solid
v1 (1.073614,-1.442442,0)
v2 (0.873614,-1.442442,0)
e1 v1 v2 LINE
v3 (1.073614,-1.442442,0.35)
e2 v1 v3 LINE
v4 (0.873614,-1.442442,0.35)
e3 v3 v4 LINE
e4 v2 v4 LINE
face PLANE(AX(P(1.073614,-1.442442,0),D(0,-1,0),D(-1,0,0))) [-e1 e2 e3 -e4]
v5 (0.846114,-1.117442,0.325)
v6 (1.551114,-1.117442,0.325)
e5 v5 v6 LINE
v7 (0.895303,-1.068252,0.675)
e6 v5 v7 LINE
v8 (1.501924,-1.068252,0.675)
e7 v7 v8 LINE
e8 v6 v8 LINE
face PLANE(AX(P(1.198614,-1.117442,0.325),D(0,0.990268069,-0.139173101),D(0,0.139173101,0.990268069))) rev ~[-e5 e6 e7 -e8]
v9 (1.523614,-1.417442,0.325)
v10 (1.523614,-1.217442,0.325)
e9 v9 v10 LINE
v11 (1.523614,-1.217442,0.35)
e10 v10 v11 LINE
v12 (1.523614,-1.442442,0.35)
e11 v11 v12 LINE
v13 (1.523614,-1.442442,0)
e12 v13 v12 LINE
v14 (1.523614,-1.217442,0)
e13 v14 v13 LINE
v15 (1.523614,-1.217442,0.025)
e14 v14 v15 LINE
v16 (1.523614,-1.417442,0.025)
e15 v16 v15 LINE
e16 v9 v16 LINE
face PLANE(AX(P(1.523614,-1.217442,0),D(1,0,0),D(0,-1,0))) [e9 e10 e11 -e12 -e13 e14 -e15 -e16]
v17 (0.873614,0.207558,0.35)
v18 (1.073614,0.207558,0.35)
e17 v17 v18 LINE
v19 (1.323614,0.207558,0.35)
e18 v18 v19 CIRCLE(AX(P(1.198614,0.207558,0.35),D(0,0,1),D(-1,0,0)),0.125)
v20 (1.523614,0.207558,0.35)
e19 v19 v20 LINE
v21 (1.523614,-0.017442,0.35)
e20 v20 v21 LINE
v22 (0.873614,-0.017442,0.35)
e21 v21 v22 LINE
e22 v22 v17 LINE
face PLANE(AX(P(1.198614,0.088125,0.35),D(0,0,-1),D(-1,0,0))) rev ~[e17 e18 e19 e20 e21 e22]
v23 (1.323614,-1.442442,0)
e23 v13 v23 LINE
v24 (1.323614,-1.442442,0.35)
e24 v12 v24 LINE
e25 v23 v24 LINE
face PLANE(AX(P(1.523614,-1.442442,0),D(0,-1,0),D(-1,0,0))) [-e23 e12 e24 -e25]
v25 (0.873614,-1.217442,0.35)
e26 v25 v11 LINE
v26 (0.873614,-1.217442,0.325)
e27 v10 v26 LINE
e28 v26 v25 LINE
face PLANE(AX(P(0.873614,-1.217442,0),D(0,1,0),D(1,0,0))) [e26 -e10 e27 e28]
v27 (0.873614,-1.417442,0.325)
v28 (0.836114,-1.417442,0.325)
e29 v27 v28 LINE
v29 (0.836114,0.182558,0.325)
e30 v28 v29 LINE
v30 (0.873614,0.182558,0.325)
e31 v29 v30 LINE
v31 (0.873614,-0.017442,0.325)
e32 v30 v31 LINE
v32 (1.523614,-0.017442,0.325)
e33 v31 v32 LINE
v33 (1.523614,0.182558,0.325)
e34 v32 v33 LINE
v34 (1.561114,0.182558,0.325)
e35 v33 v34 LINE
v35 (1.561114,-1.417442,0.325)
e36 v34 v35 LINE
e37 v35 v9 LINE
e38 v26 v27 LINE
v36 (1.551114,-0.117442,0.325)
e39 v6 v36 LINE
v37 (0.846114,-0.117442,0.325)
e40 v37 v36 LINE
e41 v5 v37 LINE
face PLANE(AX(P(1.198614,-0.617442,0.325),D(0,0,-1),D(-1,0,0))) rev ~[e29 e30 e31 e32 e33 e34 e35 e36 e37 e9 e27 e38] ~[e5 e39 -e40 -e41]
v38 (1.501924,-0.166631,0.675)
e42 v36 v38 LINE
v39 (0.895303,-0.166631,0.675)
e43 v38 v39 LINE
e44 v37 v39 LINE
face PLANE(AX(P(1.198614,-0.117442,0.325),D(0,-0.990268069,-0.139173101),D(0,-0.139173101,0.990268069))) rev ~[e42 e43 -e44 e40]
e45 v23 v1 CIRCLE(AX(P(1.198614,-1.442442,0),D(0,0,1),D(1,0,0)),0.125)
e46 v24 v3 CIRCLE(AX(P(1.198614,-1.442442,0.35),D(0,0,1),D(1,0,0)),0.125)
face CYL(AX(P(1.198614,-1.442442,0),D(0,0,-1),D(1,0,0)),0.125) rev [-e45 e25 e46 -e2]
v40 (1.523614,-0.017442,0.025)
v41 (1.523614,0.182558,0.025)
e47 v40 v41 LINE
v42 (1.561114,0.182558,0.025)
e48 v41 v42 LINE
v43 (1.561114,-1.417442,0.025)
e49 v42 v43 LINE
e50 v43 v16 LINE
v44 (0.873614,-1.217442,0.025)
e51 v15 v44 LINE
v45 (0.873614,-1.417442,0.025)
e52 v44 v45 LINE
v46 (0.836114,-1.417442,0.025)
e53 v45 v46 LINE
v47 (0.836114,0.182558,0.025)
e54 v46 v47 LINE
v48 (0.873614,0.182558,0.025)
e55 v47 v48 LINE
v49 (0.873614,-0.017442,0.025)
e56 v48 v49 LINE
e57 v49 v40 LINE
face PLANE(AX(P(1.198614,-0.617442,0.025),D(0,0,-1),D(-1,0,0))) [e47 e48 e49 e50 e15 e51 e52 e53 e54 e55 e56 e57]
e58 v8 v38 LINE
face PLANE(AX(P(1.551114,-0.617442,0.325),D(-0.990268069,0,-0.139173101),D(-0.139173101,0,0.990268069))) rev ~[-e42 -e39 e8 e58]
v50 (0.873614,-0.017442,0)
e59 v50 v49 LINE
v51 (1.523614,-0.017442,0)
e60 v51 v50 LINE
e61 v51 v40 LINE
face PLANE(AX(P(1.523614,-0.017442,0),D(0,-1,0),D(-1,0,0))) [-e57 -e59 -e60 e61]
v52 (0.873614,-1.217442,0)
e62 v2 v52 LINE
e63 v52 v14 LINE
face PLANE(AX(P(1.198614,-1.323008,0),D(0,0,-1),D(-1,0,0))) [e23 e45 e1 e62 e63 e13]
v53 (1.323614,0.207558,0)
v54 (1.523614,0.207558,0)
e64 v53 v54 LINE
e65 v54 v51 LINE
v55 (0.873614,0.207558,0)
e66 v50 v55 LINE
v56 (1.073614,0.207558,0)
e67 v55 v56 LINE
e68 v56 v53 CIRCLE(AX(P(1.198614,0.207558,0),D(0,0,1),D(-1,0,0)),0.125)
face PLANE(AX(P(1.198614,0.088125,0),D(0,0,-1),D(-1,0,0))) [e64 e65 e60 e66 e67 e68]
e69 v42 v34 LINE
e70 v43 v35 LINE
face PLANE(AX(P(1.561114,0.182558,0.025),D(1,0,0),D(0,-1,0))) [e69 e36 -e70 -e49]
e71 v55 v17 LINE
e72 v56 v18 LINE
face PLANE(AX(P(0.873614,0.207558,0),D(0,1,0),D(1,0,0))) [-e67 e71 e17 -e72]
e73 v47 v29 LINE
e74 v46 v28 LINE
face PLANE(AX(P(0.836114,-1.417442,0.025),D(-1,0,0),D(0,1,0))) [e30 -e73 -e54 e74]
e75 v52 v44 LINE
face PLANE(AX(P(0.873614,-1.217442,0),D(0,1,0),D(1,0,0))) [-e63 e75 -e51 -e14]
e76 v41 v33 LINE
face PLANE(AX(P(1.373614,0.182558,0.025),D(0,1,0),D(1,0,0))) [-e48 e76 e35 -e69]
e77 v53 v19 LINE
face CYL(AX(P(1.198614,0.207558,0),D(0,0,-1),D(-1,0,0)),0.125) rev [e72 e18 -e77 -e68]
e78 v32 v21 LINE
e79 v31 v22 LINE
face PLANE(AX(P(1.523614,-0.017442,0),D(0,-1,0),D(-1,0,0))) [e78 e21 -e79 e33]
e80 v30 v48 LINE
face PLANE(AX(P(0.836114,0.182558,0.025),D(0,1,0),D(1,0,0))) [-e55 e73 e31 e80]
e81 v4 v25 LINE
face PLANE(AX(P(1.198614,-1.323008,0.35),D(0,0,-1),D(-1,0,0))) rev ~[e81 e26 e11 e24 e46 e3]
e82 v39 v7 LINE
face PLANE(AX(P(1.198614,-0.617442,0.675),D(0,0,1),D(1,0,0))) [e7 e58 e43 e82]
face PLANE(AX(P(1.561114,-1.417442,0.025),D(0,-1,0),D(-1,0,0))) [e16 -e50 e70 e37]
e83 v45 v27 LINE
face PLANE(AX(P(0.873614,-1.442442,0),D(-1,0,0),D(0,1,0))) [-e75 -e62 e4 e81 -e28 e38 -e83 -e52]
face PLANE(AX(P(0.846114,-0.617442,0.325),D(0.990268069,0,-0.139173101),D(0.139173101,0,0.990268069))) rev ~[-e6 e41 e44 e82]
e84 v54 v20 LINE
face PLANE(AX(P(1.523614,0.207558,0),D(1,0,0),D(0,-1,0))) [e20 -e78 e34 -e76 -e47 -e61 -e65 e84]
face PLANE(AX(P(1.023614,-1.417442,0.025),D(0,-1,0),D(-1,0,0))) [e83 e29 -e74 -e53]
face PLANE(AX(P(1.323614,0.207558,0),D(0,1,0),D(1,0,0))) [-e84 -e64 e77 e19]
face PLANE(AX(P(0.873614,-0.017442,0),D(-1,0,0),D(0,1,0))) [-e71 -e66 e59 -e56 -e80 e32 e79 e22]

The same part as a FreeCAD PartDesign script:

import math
import FreeCAD as App
import Part
import Sketcher
from FreeCAD import Vector
Q = App.Units.Quantity

doc = App.newDocument("Part")
body = doc.addObject("PartDesign::Body", "Body")

# Sketch on XY plane
sketch1 = body.newObject("Sketcher::SketchObject", "Sketch")
sketch1.AttachmentSupport = (doc.getObject("XY_Plane"), [""])
sketch1.MapMode = "FlatFace"
sketch1.addGeometry(Part.LineSegment(Vector(1.07, 0.21, 0), Vector(0.87, 0.21, 0)), False)
sketch1.addGeometry(Part.LineSegment(Vector(0.87, 0.21, 0), Vector(0.87, -0.02, 0)), False)
sketch1.addGeometry(Part.LineSegment(Vector(0.87, -0.02, 0), Vector(1.52, -0.02, 0)), False)
sketch1.addGeometry(Part.LineSegment(Vector(1.52, -0.02, 0), Vector(1.52, 0.21, 0)), False)
sketch1.addGeometry(Part.LineSegment(Vector(1.52, 0.21, 0), Vector(1.32, 0.21, 0)), False)
sketch1.addGeometry(Part.ArcOfCircle(Part.Circle(Vector(1.2, 0.21, 0), Vector(0, 0, 1), 0.12), math.radians(180), math.radians(360)), False)
sketch1.addConstraint(Sketcher.Constraint("Coincident", 0, 2, 1, 1))
sketch1.addConstraint(Sketcher.Constraint("Coincident", 1, 2, 2, 1))
sketch1.addConstraint(Sketcher.Constraint("Coincident", 2, 2, 3, 1))
sketch1.addConstraint(Sketcher.Constraint("Coincident", 3, 2, 4, 1))
sketch1.addConstraint(Sketcher.Constraint("Coincident", 4, 2, 5, 2))
sketch1.addConstraint(Sketcher.Constraint("Coincident", 5, 1, 0, 1))
sketch1.addConstraint(Sketcher.Constraint("Horizontal", 0))
sketch1.addConstraint(Sketcher.Constraint("Vertical", 1))
sketch1.addConstraint(Sketcher.Constraint("Horizontal", 2))
sketch1.addConstraint(Sketcher.Constraint("Vertical", 3))
sketch1.addConstraint(Sketcher.Constraint("Horizontal", 4))
sketch1.addConstraint(Sketcher.Constraint("Horizontal", 5, 3, 0, 2))
sketch1.addConstraint(Sketcher.Constraint("Horizontal", 0, 2, 3, 2))
sketch1.addConstraint(Sketcher.Constraint("Equal", 0, 4))
sketch1.addConstraint(Sketcher.Constraint("DistanceX", 0, 2, 0, 1, Q("0.2 mm")))
sketch1.addConstraint(Sketcher.Constraint("Radius", 5, Q("0.125 mm")))
sketch1.addConstraint(Sketcher.Constraint("DistanceY", 1, 2, 1, 1, Q("0.225 mm")))
sketch1.addConstraint(Sketcher.Constraint("DistanceY", -1, 1, 5, 3, Q("0.207558 mm")))
sketch1.addConstraint(Sketcher.Constraint("DistanceX", -1, 1, 5, 3, Q("1.198614 mm")))
pad1 = body.newObject("PartDesign::Pad", "Pad")
pad1.Profile = sketch1
pad1.Length = 0.35
body2 = doc.addObject("PartDesign::Body", "Body001")

# Sketch on XY plane
sketch2 = body2.newObject("Sketcher::SketchObject", "Sketch001")
sketch2.AttachmentSupport = (doc.getObject("XY_Plane001"), [""])
sketch2.MapMode = "FlatFace"
sketch2.addGeometry(Part.LineSegment(Vector(1.52, -1.22, 0), Vector(0.87, -1.22, 0)), False)
sketch2.addGeometry(Part.LineSegment(Vector(0.87, -1.22, 0), Vector(0.87, -1.44, 0)), False)
sketch2.addGeometry(Part.LineSegment(Vector(0.87, -1.44, 0), Vector(1.07, -1.44, 0)), False)
sketch2.addGeometry(Part.ArcOfCircle(Part.Circle(Vector(1.2, -1.44, 0), Vector(0, 0, 1), 0.12), math.radians(0), math.radians(180)), False)
sketch2.addGeometry(Part.LineSegment(Vector(1.32, -1.44, 0), Vector(1.52, -1.44, 0)), False)
sketch2.addGeometry(Part.LineSegment(Vector(1.52, -1.44, 0), Vector(1.52, -1.22, 0)), False)
sketch2.addConstraint(Sketcher.Constraint("Coincident", 0, 2, 1, 1))
sketch2.addConstraint(Sketcher.Constraint("Coincident", 1, 2, 2, 1))
sketch2.addConstraint(Sketcher.Constraint("Coincident", 2, 2, 3, 2))
sketch2.addConstraint(Sketcher.Constraint("Coincident", 3, 1, 4, 1))
sketch2.addConstraint(Sketcher.Constraint("Coincident", 4, 2, 5, 1))
sketch2.addConstraint(Sketcher.Constraint("Coincident", 5, 2, 0, 1))
sketch2.addConstraint(Sketcher.Constraint("Horizontal", 0))
sketch2.addConstraint(Sketcher.Constraint("Vertical", 1))
sketch2.addConstraint(Sketcher.Constraint("Horizontal", 2))
sketch2.addConstraint(Sketcher.Constraint("Horizontal", 4))
sketch2.addConstraint(Sketcher.Constraint("Vertical", 5))
sketch2.addConstraint(Sketcher.Constraint("Horizontal", 3, 3, 1, 2))
sketch2.addConstraint(Sketcher.Constraint("Horizontal", 2, 2, 3, 1))
sketch2.addConstraint(Sketcher.Constraint("Equal", 2, 4))
sketch2.addConstraint(Sketcher.Constraint("DistanceX", 2, 1, 2, 2, Q("0.2 mm")))
sketch2.addConstraint(Sketcher.Constraint("Radius", 3, Q("0.125 mm")))
sketch2.addConstraint(Sketcher.Constraint("DistanceY", 1, 2, 1, 1, Q("0.225 mm")))
sketch2.addConstraint(Sketcher.Constraint("DistanceY", 3, 3, -1, 1, Q("1.442442 mm")))
sketch2.addConstraint(Sketcher.Constraint("DistanceX", -1, 1, 3, 3, Q("1.198614 mm")))
pad2 = body2.newObject("PartDesign::Pad", "Pad001")
pad2.Profile = sketch2
pad2.Length = 0.35
body.AllowCompound = True
doc.recompute()

boolean = body.newObject("PartDesign::Boolean", "Boolean")
boolean.Type = "Fuse"
boolean.addObjects([body2])

# Sketch on XY plane
sketch3 = body.newObject("Sketcher::SketchObject", "Sketch002")
sketch3.AttachmentSupport = (doc.getObject("XY_Plane"), [""])
sketch3.MapMode = "FlatFace"
sketch3.AttachmentOffset = App.Placement(Vector(0, 0, 0.025), App.Rotation())
sketch3.addGeometry(Part.LineSegment(Vector(1.02, 0.18, 0), Vector(0.84, 0.18, 0)), False)
sketch3.addGeometry(Part.LineSegment(Vector(0.84, 0.18, 0), Vector(0.84, -1.42, 0)), False)
sketch3.addGeometry(Part.LineSegment(Vector(0.84, -1.42, 0), Vector(1.02, -1.42, 0)), False)
sketch3.addGeometry(Part.ArcOfCircle(Part.Circle(Vector(1.2, -1.42, 0), Vector(0, 0, 1), 0.17), math.radians(0), math.radians(180)), False)
sketch3.addGeometry(Part.LineSegment(Vector(1.37, -1.42, 0), Vector(1.56, -1.42, 0)), False)
sketch3.addGeometry(Part.LineSegment(Vector(1.56, -1.42, 0), Vector(1.56, 0.18, 0)), False)
sketch3.addGeometry(Part.LineSegment(Vector(1.56, 0.18, 0), Vector(1.37, 0.18, 0)), False)
sketch3.addGeometry(Part.ArcOfCircle(Part.Circle(Vector(1.2, 0.18, 0), Vector(0, 0, 1), 0.17), math.radians(180), math.radians(360)), False)
sketch3.addConstraint(Sketcher.Constraint("Coincident", 0, 2, 1, 1))
sketch3.addConstraint(Sketcher.Constraint("Coincident", 1, 2, 2, 1))
sketch3.addConstraint(Sketcher.Constraint("Coincident", 2, 2, 3, 2))
sketch3.addConstraint(Sketcher.Constraint("Coincident", 3, 1, 4, 1))
sketch3.addConstraint(Sketcher.Constraint("Coincident", 4, 2, 5, 1))
sketch3.addConstraint(Sketcher.Constraint("Coincident", 5, 2, 6, 1))
sketch3.addConstraint(Sketcher.Constraint("Coincident", 6, 2, 7, 2))
sketch3.addConstraint(Sketcher.Constraint("Coincident", 7, 1, 0, 1))
sketch3.addConstraint(Sketcher.Constraint("Horizontal", 0))
sketch3.addConstraint(Sketcher.Constraint("Vertical", 1))
sketch3.addConstraint(Sketcher.Constraint("Horizontal", 2))
sketch3.addConstraint(Sketcher.Constraint("Horizontal", 4))
sketch3.addConstraint(Sketcher.Constraint("Vertical", 5))
sketch3.addConstraint(Sketcher.Constraint("Horizontal", 6))
sketch3.addConstraint(Sketcher.Constraint("Equal", 3, 7))
sketch3.addConstraint(Sketcher.Constraint("Horizontal", 7, 3, 0, 2))
sketch3.addConstraint(Sketcher.Constraint("Horizontal", 3, 3, 1, 2))
sketch3.addConstraint(Sketcher.Constraint("Horizontal", 2, 2, 3, 1))
sketch3.addConstraint(Sketcher.Constraint("Horizontal", 0, 2, 5, 2))
sketch3.addConstraint(Sketcher.Constraint("Vertical", 3, 3, 7, 3))
sketch3.addConstraint(Sketcher.Constraint("Equal", 2, 4))
sketch3.addConstraint(Sketcher.Constraint("DistanceY", 1, 2, 1, 1, Q("1.6 mm")))
sketch3.addConstraint(Sketcher.Constraint("Radius", 3, Q("0.175 mm")))
sketch3.addConstraint(Sketcher.Constraint("DistanceX", 0, 2, 0, 1, Q("0.1875 mm")))
sketch3.addConstraint(Sketcher.Constraint("DistanceY", 3, 3, -1, 1, Q("1.417442 mm")))
sketch3.addConstraint(Sketcher.Constraint("DistanceX", -1, 1, 3, 3, Q("1.198614 mm")))
pad3 = body.newObject("PartDesign::Pad", "Pad002")
pad3.Profile = sketch3
pad3.Length = 0.3

# Sketch on XY plane
sketch4 = body.newObject("Sketcher::SketchObject", "Sketch003")
sketch4.AttachmentSupport = (doc.getObject("XY_Plane"), [""])
sketch4.MapMode = "FlatFace"
sketch4.AttachmentOffset = App.Placement(Vector(0, 0, 0.325), App.Rotation())
sketch4.addGeometry(Part.LineSegment(Vector(0.8, -0.1, 0), Vector(0.8, -1.1, 0)), False)
sketch4.addGeometry(Part.LineSegment(Vector(0.8, -1.1, 0), Vector(1.6, -1.1, 0)), False)
sketch4.addGeometry(Part.LineSegment(Vector(1.6, -1.1, 0), Vector(1.6, -0.1, 0)), False)
sketch4.addGeometry(Part.LineSegment(Vector(1.6, -0.1, 0), Vector(0.8, -0.1, 0)), False)
sketch4.addConstraint(Sketcher.Constraint("Coincident", 0, 2, 1, 1))
sketch4.addConstraint(Sketcher.Constraint("Coincident", 1, 2, 2, 1))
sketch4.addConstraint(Sketcher.Constraint("Coincident", 2, 2, 3, 1))
sketch4.addConstraint(Sketcher.Constraint("Coincident", 3, 2, 0, 1))
sketch4.addConstraint(Sketcher.Constraint("Vertical", 0))
sketch4.addConstraint(Sketcher.Constraint("Horizontal", 1))
sketch4.addConstraint(Sketcher.Constraint("Vertical", 2))
sketch4.addConstraint(Sketcher.Constraint("Horizontal", 3))
sketch4.addConstraint(Sketcher.Constraint("DistanceY", 0, 2, 0, 1, Q("1 mm")))
sketch4.addConstraint(Sketcher.Constraint("DistanceX", 1, 1, 1, 2, Q("0.705 mm")))
sketch4.addConstraint(Sketcher.Constraint("DistanceY", 0, 2, -1, 1, Q("1.117442 mm")))
sketch4.addConstraint(Sketcher.Constraint("DistanceX", -1, 1, 0, 2, Q("0.846114 mm")))
pad4 = body.newObject("PartDesign::Pad", "Pad003")
pad4.Profile = sketch4
pad4.Length = 0.35
pad4.TaperAngle = -8

doc.recompute()
